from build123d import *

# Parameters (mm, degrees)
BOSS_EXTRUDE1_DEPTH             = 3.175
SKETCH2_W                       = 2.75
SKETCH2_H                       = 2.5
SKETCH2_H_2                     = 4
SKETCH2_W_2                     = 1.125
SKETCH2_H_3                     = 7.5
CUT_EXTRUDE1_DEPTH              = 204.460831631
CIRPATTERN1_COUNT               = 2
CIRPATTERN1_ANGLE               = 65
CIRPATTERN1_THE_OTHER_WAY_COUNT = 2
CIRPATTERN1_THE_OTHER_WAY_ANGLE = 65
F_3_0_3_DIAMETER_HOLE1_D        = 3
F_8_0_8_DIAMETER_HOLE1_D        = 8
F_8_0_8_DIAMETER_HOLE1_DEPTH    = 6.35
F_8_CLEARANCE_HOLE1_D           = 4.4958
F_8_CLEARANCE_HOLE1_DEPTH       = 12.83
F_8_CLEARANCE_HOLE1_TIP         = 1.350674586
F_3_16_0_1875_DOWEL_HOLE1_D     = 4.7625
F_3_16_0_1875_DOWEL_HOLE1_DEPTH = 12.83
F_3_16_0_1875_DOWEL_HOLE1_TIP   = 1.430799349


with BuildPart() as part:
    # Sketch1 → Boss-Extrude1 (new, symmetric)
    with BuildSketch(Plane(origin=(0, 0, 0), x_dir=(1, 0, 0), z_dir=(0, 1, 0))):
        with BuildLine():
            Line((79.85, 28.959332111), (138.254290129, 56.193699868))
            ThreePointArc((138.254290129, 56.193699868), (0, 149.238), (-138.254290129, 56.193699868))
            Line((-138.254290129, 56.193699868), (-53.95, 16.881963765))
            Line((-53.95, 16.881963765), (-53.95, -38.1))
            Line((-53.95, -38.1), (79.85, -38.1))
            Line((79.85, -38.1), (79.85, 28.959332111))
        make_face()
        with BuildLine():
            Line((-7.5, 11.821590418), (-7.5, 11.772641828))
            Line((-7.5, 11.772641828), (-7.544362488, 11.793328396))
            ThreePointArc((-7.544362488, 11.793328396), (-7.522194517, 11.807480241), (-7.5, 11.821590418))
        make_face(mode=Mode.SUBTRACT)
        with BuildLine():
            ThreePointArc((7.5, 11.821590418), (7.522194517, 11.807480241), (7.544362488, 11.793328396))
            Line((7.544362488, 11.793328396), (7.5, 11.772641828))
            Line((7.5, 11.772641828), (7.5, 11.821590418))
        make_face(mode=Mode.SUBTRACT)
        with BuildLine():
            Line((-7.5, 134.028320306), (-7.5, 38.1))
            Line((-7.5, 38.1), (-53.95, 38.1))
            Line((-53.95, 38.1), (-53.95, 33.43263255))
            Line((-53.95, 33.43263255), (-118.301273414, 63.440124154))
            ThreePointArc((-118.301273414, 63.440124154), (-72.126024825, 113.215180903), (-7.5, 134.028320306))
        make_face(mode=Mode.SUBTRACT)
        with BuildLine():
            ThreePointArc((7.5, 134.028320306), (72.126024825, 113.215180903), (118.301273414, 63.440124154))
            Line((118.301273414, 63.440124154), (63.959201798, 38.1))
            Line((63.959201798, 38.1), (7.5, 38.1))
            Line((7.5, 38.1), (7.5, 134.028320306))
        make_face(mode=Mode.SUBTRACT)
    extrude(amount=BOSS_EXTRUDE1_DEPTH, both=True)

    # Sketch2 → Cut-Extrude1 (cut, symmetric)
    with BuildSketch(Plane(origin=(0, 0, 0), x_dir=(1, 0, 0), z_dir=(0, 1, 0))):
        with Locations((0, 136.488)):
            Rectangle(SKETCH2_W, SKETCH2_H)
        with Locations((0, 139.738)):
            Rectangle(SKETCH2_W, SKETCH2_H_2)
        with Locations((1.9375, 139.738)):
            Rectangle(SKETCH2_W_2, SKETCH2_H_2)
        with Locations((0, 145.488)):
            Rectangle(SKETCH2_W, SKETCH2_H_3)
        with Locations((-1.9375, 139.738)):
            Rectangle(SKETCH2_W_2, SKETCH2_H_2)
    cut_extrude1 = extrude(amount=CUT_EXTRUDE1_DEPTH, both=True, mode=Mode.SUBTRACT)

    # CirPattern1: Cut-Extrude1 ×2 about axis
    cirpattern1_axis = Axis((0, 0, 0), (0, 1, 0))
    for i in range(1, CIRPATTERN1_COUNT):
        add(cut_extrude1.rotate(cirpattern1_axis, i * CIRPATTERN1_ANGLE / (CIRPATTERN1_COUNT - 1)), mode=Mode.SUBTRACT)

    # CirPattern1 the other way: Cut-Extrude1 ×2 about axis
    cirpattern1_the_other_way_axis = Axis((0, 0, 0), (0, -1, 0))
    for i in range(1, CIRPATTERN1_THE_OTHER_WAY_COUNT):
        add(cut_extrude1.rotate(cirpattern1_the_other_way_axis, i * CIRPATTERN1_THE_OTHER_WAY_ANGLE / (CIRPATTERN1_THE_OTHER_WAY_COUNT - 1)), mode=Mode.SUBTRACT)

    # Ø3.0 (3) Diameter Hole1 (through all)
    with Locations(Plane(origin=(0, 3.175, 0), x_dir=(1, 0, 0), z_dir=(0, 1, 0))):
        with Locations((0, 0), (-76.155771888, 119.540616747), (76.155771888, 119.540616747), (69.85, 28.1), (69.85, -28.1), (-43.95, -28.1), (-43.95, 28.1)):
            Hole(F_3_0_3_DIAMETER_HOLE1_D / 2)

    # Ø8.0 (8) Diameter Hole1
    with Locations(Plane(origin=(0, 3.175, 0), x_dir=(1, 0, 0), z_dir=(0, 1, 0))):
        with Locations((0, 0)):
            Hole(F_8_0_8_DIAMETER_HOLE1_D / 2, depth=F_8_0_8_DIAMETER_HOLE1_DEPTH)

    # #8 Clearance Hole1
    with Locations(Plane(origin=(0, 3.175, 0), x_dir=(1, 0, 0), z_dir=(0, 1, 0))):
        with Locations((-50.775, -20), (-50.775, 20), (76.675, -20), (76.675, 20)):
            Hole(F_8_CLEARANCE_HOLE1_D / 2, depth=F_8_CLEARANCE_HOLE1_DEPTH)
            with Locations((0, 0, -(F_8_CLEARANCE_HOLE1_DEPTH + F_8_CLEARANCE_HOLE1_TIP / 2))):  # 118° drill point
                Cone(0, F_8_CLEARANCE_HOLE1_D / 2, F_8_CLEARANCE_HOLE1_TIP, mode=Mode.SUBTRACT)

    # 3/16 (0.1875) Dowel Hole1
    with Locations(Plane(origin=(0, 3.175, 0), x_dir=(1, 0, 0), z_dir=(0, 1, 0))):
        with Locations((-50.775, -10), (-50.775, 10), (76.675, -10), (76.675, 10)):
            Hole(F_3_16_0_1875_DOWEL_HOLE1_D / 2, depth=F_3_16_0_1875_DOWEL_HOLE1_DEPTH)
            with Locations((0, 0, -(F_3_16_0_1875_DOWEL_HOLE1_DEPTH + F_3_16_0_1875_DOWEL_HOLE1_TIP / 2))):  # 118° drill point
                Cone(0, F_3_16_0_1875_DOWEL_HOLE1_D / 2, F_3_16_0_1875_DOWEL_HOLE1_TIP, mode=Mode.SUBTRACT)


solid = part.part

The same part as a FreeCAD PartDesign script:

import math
import FreeCAD as App
import Part
import Sketcher

V = App.Vector
Q = App.Units.Quantity


def add_polygon(sketch, points):
    """Adds a closed chain of lines whose ends are joined by coincident constraints."""
    first, n = sketch.GeometryCount, len(points)
    for a, b in zip(points, points[1:] + points[:1]):
        sketch.addGeometry(Part.LineSegment(App.Vector(*a, 0), App.Vector(*b, 0)), False)
    for i in range(n):
        sketch.addConstraint(Sketcher.Constraint("Coincident", first + i, 2, first + (i + 1) % n, 1))

doc = App.newDocument("Part")
body = doc.addObject("PartDesign::Body", "Body")

sketch1 = body.newObject("Sketcher::SketchObject", "Sketch")
sketch1.AttachmentSupport = (doc.getObject("XZ_Plane"), [""])
sketch1.MapMode = "FlatFace"
sketch1.addGeometry(Part.LineSegment(V(79.85, -28.959332, 0), V(138.25429, -56.1937, 0)), False)
sketch1.addGeometry(Part.ArcOfCircle(Part.Circle(V(0, 0, 0), V(0, 0, 1), 149.238), math.radians(-157.88063), math.radians(-22.11937)), False)
sketch1.addGeometry(Part.LineSegment(V(-138.25429, -56.1937, 0), V(-53.95, -16.881964, 0)), False)
sketch1.addGeometry(Part.LineSegment(V(-53.95, -16.881964, 0), V(-53.95, 38.1, 0)), False)
sketch1.addGeometry(Part.LineSegment(V(-53.95, 38.1, 0), V(79.85, 38.1, 0)), False)
sketch1.addGeometry(Part.LineSegment(V(79.85, 38.1, 0), V(79.85, -28.959332, 0)), False)
sketch1.addGeometry(Part.ArcOfCircle(Part.Circle(V(0.000168, 0.000263, 0), V(0, 0, 1), 14.000312), math.radians(-122.607632), math.radians(-122.392368)), False)
sketch1.addGeometry(Part.LineSegment(V(-7.5, -11.82159, 0), V(-7.5, -11.772642, 0)), False)
sketch1.addGeometry(Part.LineSegment(V(-7.5, -11.772642, 0), V(-7.544362, -11.793328, 0)), False)
sketch1.addGeometry(Part.LineSegment(V(7.5, -11.772642, 0), V(7.5, -11.82159, 0)), False)
sketch1.addGeometry(Part.ArcOfCircle(Part.Circle(V(-0.000168, 0.000263, 0), V(0, 0, 1), 14.000312), math.radians(-57.607632), math.radians(-57.392368)), False)
sketch1.addGeometry(Part.LineSegment(V(7.544362, -11.793328, 0), V(7.5, -11.772642, 0)), False)
sketch1.addGeometry(Part.ArcOfCircle(Part.Circle(V(0, 0, 0), V(0, 0, 1), 134.238), math.radians(-151.797165), math.radians(-93.202835)), False)
sketch1.addGeometry(Part.LineSegment(V(-7.5, -134.02832, 0), V(-7.5, -38.1, 0)), False)
sketch1.addGeometry(Part.LineSegment(V(-7.5, -38.1, 0), V(-53.95, -38.1, 0)), False)
sketch1.addGeometry(Part.LineSegment(V(-53.95, -38.1, 0), V(-53.95, -33.432633, 0)), False)
sketch1.addGeometry(Part.LineSegment(V(-53.95, -33.432633, 0), V(-118.301273, -63.440124, 0)), False)
sketch1.addGeometry(Part.LineSegment(V(7.5, -38.1, 0), V(7.5, -134.02832, 0)), False)
sketch1.addGeometry(Part.ArcOfCircle(Part.Circle(V(0, 0, 0), V(0, 0, 1), 134.238), math.radians(-86.797165), math.radians(-28.202835)), False)
sketch1.addGeometry(Part.LineSegment(V(118.301273, -63.440124, 0), V(63.959202, -38.1, 0)), False)
sketch1.addGeometry(Part.LineSegment(V(63.959202, -38.1, 0), V(7.5, -38.1, 0)), False)
sketch1.addConstraint(Sketcher.Constraint("Coincident", 0, 2, 1, 2))
sketch1.addConstraint(Sketcher.Constraint("Coincident", 1, 1, 2, 1))
sketch1.addConstraint(Sketcher.Constraint("Coincident", 2, 2, 3, 1))
sketch1.addConstraint(Sketcher.Constraint("Coincident", 3, 2, 4, 1))
sketch1.addConstraint(Sketcher.Constraint("Coincident", 4, 2, 5, 1))
sketch1.addConstraint(Sketcher.Constraint("Coincident", 5, 2, 0, 1))
sketch1.addConstraint(Sketcher.Constraint("Coincident", 6, 2, 7, 1))
sketch1.addConstraint(Sketcher.Constraint("Coincident", 7, 2, 8, 1))
sketch1.addConstraint(Sketcher.Constraint("Coincident", 8, 2, 6, 1))
sketch1.addConstraint(Sketcher.Constraint("Coincident", 9, 2, 10, 1))
sketch1.addConstraint(Sketcher.Constraint("Coincident", 10, 2, 11, 1))
sketch1.addConstraint(Sketcher.Constraint("Coincident", 11, 2, 9, 1))
sketch1.addConstraint(Sketcher.Constraint("Coincident", 12, 2, 13, 1))
sketch1.addConstraint(Sketcher.Constraint("Coincident", 13, 2, 14, 1))
sketch1.addConstraint(Sketcher.Constraint("Coincident", 14, 2, 15, 1))
sketch1.addConstraint(Sketcher.Constraint("Coincident", 15, 2, 16, 1))
sketch1.addConstraint(Sketcher.Constraint("Coincident", 16, 2, 12, 1))
sketch1.addConstraint(Sketcher.Constraint("Coincident", 17, 2, 18, 1))
sketch1.addConstraint(Sketcher.Constraint("Coincident", 18, 2, 19, 1))
sketch1.addConstraint(Sketcher.Constraint("Coincident", 19, 2, 20, 1))
sketch1.addConstraint(Sketcher.Constraint("Coincident", 20, 2, 17, 1))
sketch1.addConstraint(Sketcher.Constraint("Vertical", 3))
sketch1.addConstraint(Sketcher.Constraint("Horizontal", 4))
sketch1.addConstraint(Sketcher.Constraint("Vertical", 5))
sketch1.addConstraint(Sketcher.Constraint("Vertical", 7))
sketch1.addConstraint(Sketcher.Constraint("Vertical", 9))
sketch1.addConstraint(Sketcher.Constraint("Vertical", 13))
sketch1.addConstraint(Sketcher.Constraint("Horizontal", 14))
sketch1.addConstraint(Sketcher.Constraint("Vertical", 15))
sketch1.addConstraint(Sketcher.Constraint("Vertical", 17))
sketch1.addConstraint(Sketcher.Constraint("Horizontal", 20))
sketch1.addConstraint(Sketcher.Constraint("Coincident", 1, 3, -1, 1))
sketch1.addConstraint(Sketcher.Constraint("Coincident", 12, 3, -1, 1))
sketch1.addConstraint(Sketcher.Constraint("Coincident", 18, 3, -1, 1))
sketch1.addConstraint(Sketcher.Constraint("Equal", 6, 10))
sketch1.addConstraint(Sketcher.Constraint("Equal", 12, 18))
sketch1.addConstraint(Sketcher.Constraint("Symmetric", 6, 3, 10, 3, -2))
sketch1.addConstraint(Sketcher.Constraint("Symmetric", 7, 2, 11, 2, -2))
sketch1.addConstraint(Sketcher.Constraint("Symmetric", 13, 2, 20, 2, -2))
sketch1.addConstraint(Sketcher.Constraint("Symmetric", 3, 2, 14, 2, -1))
sketch1.addConstraint(Sketcher.Constraint("Parallel", 2, 8))
sketch1.addConstraint(Sketcher.Constraint("Parallel", 0, 11))
sketch1.addConstraint(Sketcher.Constraint("Parallel", 2, 16))
sketch1.addConstraint(Sketcher.Constraint("Parallel", 0, 19))
sketch1.addConstraint(Sketcher.Constraint("Horizontal", 0, 2, 1, 1))
sketch1.addConstraint(Sketcher.Constraint("Horizontal", 16, 2, 18, 2))
sketch1.addConstraint(Sketcher.Constraint("Vertical", 7, 2, 12, 2))
sketch1.addConstraint(Sketcher.Constraint("Angle", 0, Q("-25 deg")))
sketch1.addConstraint(Sketcher.Constraint("Angle", 2, Q("25 deg")))
sketch1.addConstraint(Sketcher.Constraint("DistanceX", 4, 1, 4, 2, Q("133.8 mm")))
sketch1.addConstraint(Sketcher.Constraint("Radius", 1, Q("149.238 mm")))
sketch1.addConstraint(Sketcher.Constraint("Radius", 12, Q("134.238 mm")))
sketch1.addConstraint(Sketcher.Constraint("DistanceX", 12, 2, 9, 2, Q("15 mm")))
sketch1.addConstraint(Sketcher.Constraint("DistanceX", 14, 2, 14, 1, Q("46.45 mm")))
sketch1.addConstraint(Sketcher.Constraint("DistanceY", -1, 1, 3, 2, Q("38.1 mm")))
sketch1.addConstraint(Sketcher.Constraint("Radius", 6, Q("14.000312 mm")))
sketch1.addConstraint(Sketcher.Constraint("DistanceX", 20, 2, 20, 1, Q("56.459202 mm")))
sketch1.addConstraint(Sketcher.Constraint("DistanceY", 7, 1, 7, 2, Q("0.048949 mm")))
sketch1.addConstraint(Sketcher.Constraint("DistanceY", 0, 2, -1, 1, Q("56.1937 mm")))
sketch1.addConstraint(Sketcher.Constraint("Distance", 8, Q("0.048949 mm")))
sketch1.addConstraint(Sketcher.Constraint("DistanceY", 6, 2, -1, 1, Q("11.82159 mm")))
pad1 = body.newObject("PartDesign::Pad", "Pad")
pad1.Profile = sketch1
pad1.Length = 6.35
pad1.Midplane = True

sketch2 = body.newObject("Sketcher::SketchObject", "Sketch001")
sketch2.AttachmentSupport = (doc.getObject("XZ_Plane"), [""])
sketch2.MapMode = "FlatFace"
add_polygon(sketch2, [(-1.4, -135.2), (1.4, -135.2), (1.4, -137.7), (2.5, -137.7), (2.5, -141.7), (1.4, -141.7), (1.4, -149.2), (-1.4, -149.2), (-1.4, -141.7), (-2.5, -141.7), (-2.5, -137.7), (-1.4, -137.7)])
sketch2.addConstraint(Sketcher.Constraint("Horizontal", 0))
sketch2.addConstraint(Sketcher.Constraint("Vertical", 1))
sketch2.addConstraint(Sketcher.Constraint("Horizontal", 2))
sketch2.addConstraint(Sketcher.Constraint("Vertical", 3))
sketch2.addConstraint(Sketcher.Constraint("Horizontal", 4))
sketch2.addConstraint(Sketcher.Constraint("Vertical", 5))
sketch2.addConstraint(Sketcher.Constraint("Horizontal", 6))
sketch2.addConstraint(Sketcher.Constraint("Vertical", 7))
sketch2.addConstraint(Sketcher.Constraint("Horizontal", 8))
sketch2.addConstraint(Sketcher.Constraint("Vertical", 9))
sketch2.addConstraint(Sketcher.Constraint("Horizontal", 10))
sketch2.addConstraint(Sketcher.Constraint("Vertical", 11))
sketch2.addConstraint(Sketcher.Constraint("Symmetric", 4, 2, 7, 2, -2))
sketch2.addConstraint(Sketcher.Constraint("Symmetric", 2, 2, 9, 2, -2))
sketch2.addConstraint(Sketcher.Constraint("Vertical", 1, 2, 4, 2))
sketch2.addConstraint(Sketcher.Constraint("Vertical", 7, 2, 10, 2))
sketch2.addConstraint(Sketcher.Constraint("DistanceY", 3, 2, 3, 1, Q("4 mm")))
sketch2.addConstraint(Sketcher.Constraint("DistanceY", 1, 2, 1, 1, Q("2.5 mm")))
sketch2.addConstraint(Sketcher.Constraint("DistanceY", 5, 2, 5, 1, Q("7.5 mm")))
sketch2.addConstraint(Sketcher.Constraint("DistanceX", 8, 2, 3, 2, Q("5 mm")))
sketch2.addConstraint(Sketcher.Constraint("DistanceX", 0, 1, 0, 2, Q("2.75 mm")))
sketch2.addConstraint(Sketcher.Constraint("DistanceY", 0, 2, -1, 1, Q("135.238 mm")))
pocket1 = body.newObject("PartDesign::Pocket", "Pocket")
pocket1.Profile = sketch2
pocket1.Length = 408.921663
pocket1.Midplane = True
doc.recompute()

polarpattern = body.newObject("PartDesign::PolarPattern", "PolarPattern")
polarpattern.Originals = [pocket1]
polarpattern.Axis = (doc.getObject("Y_Axis"), [""])
polarpattern.Angle = 65
polarpattern.Occurrences = 2
body.Tip = polarpattern
doc.recompute()

polarpattern2 = body.newObject("PartDesign::PolarPattern", "PolarPattern001")
polarpattern2.Originals = [pocket1]
polarpattern2.Axis = (doc.getObject("Y_Axis"), [""])
polarpattern2.Angle = 65
polarpattern2.Occurrences = 2
polarpattern2.Reversed = True
body.Tip = polarpattern2

sketch3 = body.newObject("Sketcher::SketchObject", "Sketch002")
sketch3.AttachmentSupport = (doc.getObject("XZ_Plane"), [""])
sketch3.MapMode = "FlatFace"
sketch3.AttachmentOffset = App.Placement(V(0, 0, -3.175), App.Rotation())
sketch3.addGeometry(Part.Circle(V(0, 0, 0), V(0, 0, 1), 1.5), False)
sketch3.addGeometry(Part.Circle(V(-76.2, -119.5, 0), V(0, 0, 1), 1.5), False)
sketch3.addGeometry(Part.Circle(V(76.2, -119.5, 0), V(0, 0, 1), 1.5), False)
sketch3.addGeometry(Part.Circle(V(69.8, -28.1, 0), V(0, 0, 1), 1.5), False)
sketch3.addGeometry(Part.Circle(V(69.8, 28.1, 0), V(0, 0, 1), 1.5), False)
sketch3.addGeometry(Part.Circle(V(-44, 28.1, 0), V(0, 0, 1), 1.5), False)
sketch3.addGeometry(Part.Circle(V(-44, -28.1, 0), V(0, 0, 1), 1.5), False)
sketch3.addConstraint(Sketcher.Constraint("Coincident", 0, 3, -1, 1))
sketch3.addConstraint(Sketcher.Constraint("Equal", 0, 1))
sketch3.addConstraint(Sketcher.Constraint("Equal", 1, 2))
sketch3.addConstraint(Sketcher.Constraint("Equal", 2, 3))
sketch3.addConstraint(Sketcher.Constraint("Equal", 3, 4))
sketch3.addConstraint(Sketcher.Constraint("Equal", 4, 5))
sketch3.addConstraint(Sketcher.Constraint("Equal", 5, 6))
sketch3.addConstraint(Sketcher.Constraint("Symmetric", 1, 3, 2, 3, -2))
sketch3.addConstraint(Sketcher.Constraint("Symmetric", 3, 3, 4, 3, -1))
sketch3.addConstraint(Sketcher.Constraint("Symmetric", 5, 3, 6, 3, -1))
sketch3.addConstraint(Sketcher.Constraint("Horizontal", 4, 3, 5, 3))
sketch3.addConstraint(Sketcher.Constraint("Diameter", 0, Q("3 mm")))
sketch3.addConstraint(Sketcher.Constraint("DistanceY", 3, 3, -1, 1, Q("28.1 mm")))
sketch3.addConstraint(Sketcher.Constraint("DistanceX", 5, 3, 4, 3, Q("113.8 mm")))
sketch3.addConstraint(Sketcher.Constraint("DistanceX", -1, 1, 3, 3, Q("69.85 mm")))
sketch3.addConstraint(Sketcher.Constraint("DistanceX", 1, 3, -1, 1, Q("76.155772 mm")))
sketch3.addConstraint(Sketcher.Constraint("DistanceY", 1, 3, -1, 1, Q("119.540617 mm")))
doc.recompute()
hole = body.newObject("PartDesign::Hole", "Hole")
hole.Profile = sketch3
hole.ThreadType = "None"
hole.Diameter = 3
hole.DepthType = "ThroughAll"
hole.Reversed = True

sketch4 = body.newObject("Sketcher::SketchObject", "Sketch003")
sketch4.AttachmentSupport = (doc.getObject("XZ_Plane"), [""])
sketch4.MapMode = "FlatFace"
sketch4.AttachmentOffset = App.Placement(V(0, 0, -3.175), App.Rotation())
sketch4.addGeometry(Part.Circle(V(0, 0, 0), V(0, 0, 1), 4), False)
sketch4.addConstraint(Sketcher.Constraint("Coincident", 0, 3, -1, 1))
sketch4.addConstraint(Sketcher.Constraint("Diameter", 0, Q("8 mm")))
doc.recompute()
hole2 = body.newObject("PartDesign::Hole", "Hole001")
hole2.Profile = sketch4
hole2.ThreadType = "None"
hole2.Diameter = 8
hole2.DepthType = "Dimension"
hole2.Depth = 6.35
hole2.DrillPoint = "Flat"
hole2.Reversed = True

sketch5 = body.newObject("Sketcher::SketchObject", "Sketch004")
sketch5.AttachmentSupport = (doc.getObject("XZ_Plane"), [""])
sketch5.MapMode = "FlatFace"
sketch5.AttachmentOffset = App.Placement(V(0, 0, -3.175), App.Rotation())
sketch5.addGeometry(Part.Circle(V(-50.8, 20, 0), V(0, 0, 1), 2.2), False)
sketch5.addGeometry(Part.Circle(V(-50.8, -20, 0), V(0, 0, 1), 2.2), False)
sketch5.addGeometry(Part.Circle(V(76.7, 20, 0), V(0, 0, 1), 2.2), False)
sketch5.addGeometry(Part.Circle(V(76.7, -20, 0), V(0, 0, 1), 2.2), False)
sketch5.addConstraint(Sketcher.Constraint("Equal", 0, 1))
sketch5.addConstraint(Sketcher.Constraint("Equal", 1, 2))
sketch5.addConstraint(Sketcher.Constraint("Equal", 2, 3))
sketch5.addConstraint(Sketcher.Constraint("Symmetric", 0, 3, 1, 3, -1))
sketch5.addConstraint(Sketcher.Constraint("Symmetric", 2, 3, 3, 3, -1))
sketch5.addConstraint(Sketcher.Constraint("Horizontal", 0, 3, 2, 3))
sketch5.addConstraint(Sketcher.Constraint("DistanceY", -1, 1, 0, 3, Q("20 mm")))
sketch5.addConstraint(Sketcher.Constraint("Diameter", 0, Q("4.4958 mm")))
sketch5.addConstraint(Sketcher.Constraint("DistanceX", 0, 3, 2, 3, Q("127.45 mm")))
sketch5.addConstraint(Sketcher.Constraint("DistanceX", 0, 3, -1, 1, Q("50.775 mm")))
doc.recompute()
hole3 = body.newObject("PartDesign::Hole", "Hole002")
hole3.Profile = sketch5
hole3.ThreadType = "None"
hole3.Diameter = 4.4958
hole3.DepthType = "Dimension"
hole3.Depth = 12.83
hole3.DrillPoint = "Angled"
hole3.DrillPointAngle = 118
hole3.Reversed = True

sketch6 = body.newObject("Sketcher::SketchObject", "Sketch005")
sketch6.AttachmentSupport = (doc.getObject("XZ_Plane"), [""])
sketch6.MapMode = "FlatFace"
sketch6.AttachmentOffset = App.Placement(V(0, 0, -3.175), App.Rotation())
sketch6.addGeometry(Part.Circle(V(-50.8, 10, 0), V(0, 0, 1), 2.4), False)
sketch6.addGeometry(Part.Circle(V(-50.8, -10, 0), V(0, 0, 1), 2.4), False)
sketch6.addGeometry(Part.Circle(V(76.7, 10, 0), V(0, 0, 1), 2.4), False)
sketch6.addGeometry(Part.Circle(V(76.7, -10, 0), V(0, 0, 1), 2.4), False)
sketch6.addConstraint(Sketcher.Constraint("Equal", 0, 1))
sketch6.addConstraint(Sketcher.Constraint("Equal", 1, 2))
sketch6.addConstraint(Sketcher.Constraint("Equal", 2, 3))
sketch6.addConstraint(Sketcher.Constraint("Symmetric", 0, 3, 1, 3, -1))
sketch6.addConstraint(Sketcher.Constraint("Symmetric", 2, 3, 3, 3, -1))
sketch6.addConstraint(Sketcher.Constraint("Horizontal", 0, 3, 2, 3))
sketch6.addConstraint(Sketcher.Constraint("DistanceY", -1, 1, 0, 3, Q("10 mm")))
sketch6.addConstraint(Sketcher.Constraint("Diameter", 0, Q("4.7625 mm")))
sketch6.addConstraint(Sketcher.Constraint("DistanceX", 0, 3, 2, 3, Q("127.45 mm")))
sketch6.addConstraint(Sketcher.Constraint("DistanceX", 0, 3, -1, 1, Q("50.775 mm")))
doc.recompute()
hole4 = body.newObject("PartDesign::Hole", "Hole003")
hole4.Profile = sketch6
hole4.ThreadType = "None"
hole4.Diameter = 4.7625
hole4.DepthType = "Dimension"
hole4.Depth = 12.83
hole4.DrillPoint = "Angled"
hole4.DrillPointAngle = 118
hole4.Reversed = True

doc.recompute()
